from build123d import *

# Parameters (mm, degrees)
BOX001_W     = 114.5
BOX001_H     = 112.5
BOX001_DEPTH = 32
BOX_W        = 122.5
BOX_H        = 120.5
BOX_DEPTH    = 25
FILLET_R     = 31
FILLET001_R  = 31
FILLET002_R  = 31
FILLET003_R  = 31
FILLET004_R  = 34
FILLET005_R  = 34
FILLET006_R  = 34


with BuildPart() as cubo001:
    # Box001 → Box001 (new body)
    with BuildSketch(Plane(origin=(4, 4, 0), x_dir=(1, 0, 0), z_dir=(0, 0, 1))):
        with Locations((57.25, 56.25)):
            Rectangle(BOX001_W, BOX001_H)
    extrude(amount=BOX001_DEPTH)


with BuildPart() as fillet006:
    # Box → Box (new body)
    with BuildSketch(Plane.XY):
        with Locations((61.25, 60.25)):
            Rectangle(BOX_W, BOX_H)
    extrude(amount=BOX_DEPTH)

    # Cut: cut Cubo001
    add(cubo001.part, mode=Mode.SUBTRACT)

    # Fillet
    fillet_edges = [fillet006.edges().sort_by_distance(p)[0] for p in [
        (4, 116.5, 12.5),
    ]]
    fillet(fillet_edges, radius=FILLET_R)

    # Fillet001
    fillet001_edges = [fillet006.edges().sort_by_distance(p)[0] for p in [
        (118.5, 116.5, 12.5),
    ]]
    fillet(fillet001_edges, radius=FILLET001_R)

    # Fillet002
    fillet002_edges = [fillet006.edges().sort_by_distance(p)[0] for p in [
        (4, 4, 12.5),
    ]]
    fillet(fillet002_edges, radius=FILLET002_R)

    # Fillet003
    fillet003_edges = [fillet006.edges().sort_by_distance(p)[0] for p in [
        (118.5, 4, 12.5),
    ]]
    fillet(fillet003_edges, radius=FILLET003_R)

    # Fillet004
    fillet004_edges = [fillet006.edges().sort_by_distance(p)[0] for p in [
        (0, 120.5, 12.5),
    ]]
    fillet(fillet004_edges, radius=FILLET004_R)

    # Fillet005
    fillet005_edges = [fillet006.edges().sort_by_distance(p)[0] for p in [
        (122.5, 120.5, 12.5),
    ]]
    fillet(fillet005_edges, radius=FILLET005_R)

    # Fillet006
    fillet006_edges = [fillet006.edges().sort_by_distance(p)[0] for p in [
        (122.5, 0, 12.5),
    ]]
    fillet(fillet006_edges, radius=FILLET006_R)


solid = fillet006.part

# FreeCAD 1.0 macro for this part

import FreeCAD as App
import Part
import Sketcher

V = App.Vector


def edges_at(feature, points):
    """Names of the edges that pass closest to the given points."""
    edges = feature.Shape.Edges
    near = lambda p: min(range(len(edges)), key=lambda i: edges[i].distToShape(Part.Vertex(*p))[0])
    return sorted({f"Edge{near(p) + 1}" for p in points})

doc = App.newDocument("Part")
body = doc.addObject("PartDesign::Body", "Body")

# Sketch on XY plane
sketch1 = doc.addObject("Sketcher::SketchObject", "Sketch")
body.addObject(sketch1)
sketch1.AttachmentSupport = (doc.XY_Plane, [""])
sketch1.MapMode = "FlatFace"
sketch1.addGeometry([
    Part.LineSegment(V(4, 116, 0), V(4, 4, 0)),
    Part.LineSegment(V(4, 4, 0), V(118, 4, 0)),
    Part.LineSegment(V(118, 4, 0), V(118, 116, 0)),
    Part.LineSegment(V(118, 116, 0), V(4, 116, 0)),
], False)
sketch1.addConstraint([
    Sketcher.Constraint("Coincident", 0, 2, 1, 1),
    Sketcher.Constraint("Coincident", 1, 2, 2, 1),
    Sketcher.Constraint("Coincident", 2, 2, 3, 1),
    Sketcher.Constraint("Coincident", 3, 2, 0, 1),
    Sketcher.Constraint("Vertical", 0),
    Sketcher.Constraint("Horizontal", 1),
    Sketcher.Constraint("Vertical", 2),
    Sketcher.Constraint("Horizontal", 3),
    Sketcher.Constraint("DistanceX", 1, 1, 1, 2, 114.5),
    Sketcher.Constraint("DistanceY", 0, 2, 0, 1, 112.5),
    Sketcher.Constraint("DistanceX", -1, 1, 0, 2, 4.0),
    Sketcher.Constraint("DistanceY", -1, 1, 0, 2, 4.0),
])
pad1 = doc.addObject("PartDesign::Pad", "Pad")
body.addObject(pad1)
pad1.Profile = sketch1
pad1.Length = 32
body2 = doc.addObject("PartDesign::Body", "Body001")

# Sketch on XY plane
sketch2 = doc.addObject("Sketcher::SketchObject", "Sketch001")
body2.addObject(sketch2)
sketch2.AttachmentSupport = (doc.getObject("XY_Plane001"), [""])
sketch2.MapMode = "FlatFace"
sketch2.addGeometry([
    Part.LineSegment(V(0, 120, 0), V(0, 0, 0)),
    Part.LineSegment(V(0, 0, 0), V(122, 0, 0)),
    Part.LineSegment(V(122, 0, 0), V(122, 120, 0)),
    Part.LineSegment(V(122, 120, 0), V(0, 120, 0)),
], False)
sketch2.addConstraint([
    Sketcher.Constraint("Coincident", 0, 2, 1, 1),
    Sketcher.Constraint("Coincident", 1, 2, 2, 1),
    Sketcher.Constraint("Coincident", 2, 2, 3, 1),
    Sketcher.Constraint("Coincident", 3, 2, 0, 1),
    Sketcher.Constraint("Vertical", 0),
    Sketcher.Constraint("Horizontal", 1),
    Sketcher.Constraint("Vertical", 2),
    Sketcher.Constraint("Horizontal", 3),
    Sketcher.Constraint("Coincident", 0, 2, -1, 1),
    Sketcher.Constraint("DistanceX", 1, 1, 1, 2, 122.5),
    Sketcher.Constraint("DistanceY", 0, 2, 0, 1, 120.5),
])
pad2 = doc.addObject("PartDesign::Pad", "Pad001")
body2.addObject(pad2)
pad2.Profile = sketch2
pad2.Length = 25
doc.recompute()

boolean = doc.addObject("PartDesign::Boolean", "Boolean")
body2.addObject(boolean)
boolean.Type = "Cut"
boolean.addObjects([body])
doc.recompute()

fillet = doc.addObject("PartDesign::Fillet", "Fillet")
body2.addObject(fillet)
fillet.Base = (boolean, edges_at(boolean, [(4, 116.5, 12.5)]))
fillet.Radius = 31
doc.recompute()

fillet2 = doc.addObject("PartDesign::Fillet", "Fillet001")
body2.addObject(fillet2)
fillet2.Base = (fillet, edges_at(fillet, [(118.5, 116.5, 12.5)]))
fillet2.Radius = 31
doc.recompute()

fillet3 = doc.addObject("PartDesign::Fillet", "Fillet002")
body2.addObject(fillet3)
fillet3.Base = (fillet2, edges_at(fillet2, [(4, 4, 12.5)]))
fillet3.Radius = 31
doc.recompute()

fillet4 = doc.addObject("PartDesign::Fillet", "Fillet003")
body2.addObject(fillet4)
fillet4.Base = (fillet3, edges_at(fillet3, [(118.5, 4, 12.5)]))
fillet4.Radius = 31
doc.recompute()

fillet5 = doc.addObject("PartDesign::Fillet", "Fillet004")
body2.addObject(fillet5)
fillet5.Base = (fillet4, edges_at(fillet4, [(0, 120.5, 12.5)]))
fillet5.Radius = 34
doc.recompute()

fillet6 = doc.addObject("PartDesign::Fillet", "Fillet005")
body2.addObject(fillet6)
fillet6.Base = (fillet5, edges_at(fillet5, [(122.5, 120.5, 12.5)]))
fillet6.Radius = 34
doc.recompute()

fillet7 = doc.addObject("PartDesign::Fillet", "Fillet006")
body2.addObject(fillet7)
fillet7.Base = (fillet6, edges_at(fillet6, [(122.5, 0, 12.5)]))
fillet7.Radius = 34

doc.recompute()
